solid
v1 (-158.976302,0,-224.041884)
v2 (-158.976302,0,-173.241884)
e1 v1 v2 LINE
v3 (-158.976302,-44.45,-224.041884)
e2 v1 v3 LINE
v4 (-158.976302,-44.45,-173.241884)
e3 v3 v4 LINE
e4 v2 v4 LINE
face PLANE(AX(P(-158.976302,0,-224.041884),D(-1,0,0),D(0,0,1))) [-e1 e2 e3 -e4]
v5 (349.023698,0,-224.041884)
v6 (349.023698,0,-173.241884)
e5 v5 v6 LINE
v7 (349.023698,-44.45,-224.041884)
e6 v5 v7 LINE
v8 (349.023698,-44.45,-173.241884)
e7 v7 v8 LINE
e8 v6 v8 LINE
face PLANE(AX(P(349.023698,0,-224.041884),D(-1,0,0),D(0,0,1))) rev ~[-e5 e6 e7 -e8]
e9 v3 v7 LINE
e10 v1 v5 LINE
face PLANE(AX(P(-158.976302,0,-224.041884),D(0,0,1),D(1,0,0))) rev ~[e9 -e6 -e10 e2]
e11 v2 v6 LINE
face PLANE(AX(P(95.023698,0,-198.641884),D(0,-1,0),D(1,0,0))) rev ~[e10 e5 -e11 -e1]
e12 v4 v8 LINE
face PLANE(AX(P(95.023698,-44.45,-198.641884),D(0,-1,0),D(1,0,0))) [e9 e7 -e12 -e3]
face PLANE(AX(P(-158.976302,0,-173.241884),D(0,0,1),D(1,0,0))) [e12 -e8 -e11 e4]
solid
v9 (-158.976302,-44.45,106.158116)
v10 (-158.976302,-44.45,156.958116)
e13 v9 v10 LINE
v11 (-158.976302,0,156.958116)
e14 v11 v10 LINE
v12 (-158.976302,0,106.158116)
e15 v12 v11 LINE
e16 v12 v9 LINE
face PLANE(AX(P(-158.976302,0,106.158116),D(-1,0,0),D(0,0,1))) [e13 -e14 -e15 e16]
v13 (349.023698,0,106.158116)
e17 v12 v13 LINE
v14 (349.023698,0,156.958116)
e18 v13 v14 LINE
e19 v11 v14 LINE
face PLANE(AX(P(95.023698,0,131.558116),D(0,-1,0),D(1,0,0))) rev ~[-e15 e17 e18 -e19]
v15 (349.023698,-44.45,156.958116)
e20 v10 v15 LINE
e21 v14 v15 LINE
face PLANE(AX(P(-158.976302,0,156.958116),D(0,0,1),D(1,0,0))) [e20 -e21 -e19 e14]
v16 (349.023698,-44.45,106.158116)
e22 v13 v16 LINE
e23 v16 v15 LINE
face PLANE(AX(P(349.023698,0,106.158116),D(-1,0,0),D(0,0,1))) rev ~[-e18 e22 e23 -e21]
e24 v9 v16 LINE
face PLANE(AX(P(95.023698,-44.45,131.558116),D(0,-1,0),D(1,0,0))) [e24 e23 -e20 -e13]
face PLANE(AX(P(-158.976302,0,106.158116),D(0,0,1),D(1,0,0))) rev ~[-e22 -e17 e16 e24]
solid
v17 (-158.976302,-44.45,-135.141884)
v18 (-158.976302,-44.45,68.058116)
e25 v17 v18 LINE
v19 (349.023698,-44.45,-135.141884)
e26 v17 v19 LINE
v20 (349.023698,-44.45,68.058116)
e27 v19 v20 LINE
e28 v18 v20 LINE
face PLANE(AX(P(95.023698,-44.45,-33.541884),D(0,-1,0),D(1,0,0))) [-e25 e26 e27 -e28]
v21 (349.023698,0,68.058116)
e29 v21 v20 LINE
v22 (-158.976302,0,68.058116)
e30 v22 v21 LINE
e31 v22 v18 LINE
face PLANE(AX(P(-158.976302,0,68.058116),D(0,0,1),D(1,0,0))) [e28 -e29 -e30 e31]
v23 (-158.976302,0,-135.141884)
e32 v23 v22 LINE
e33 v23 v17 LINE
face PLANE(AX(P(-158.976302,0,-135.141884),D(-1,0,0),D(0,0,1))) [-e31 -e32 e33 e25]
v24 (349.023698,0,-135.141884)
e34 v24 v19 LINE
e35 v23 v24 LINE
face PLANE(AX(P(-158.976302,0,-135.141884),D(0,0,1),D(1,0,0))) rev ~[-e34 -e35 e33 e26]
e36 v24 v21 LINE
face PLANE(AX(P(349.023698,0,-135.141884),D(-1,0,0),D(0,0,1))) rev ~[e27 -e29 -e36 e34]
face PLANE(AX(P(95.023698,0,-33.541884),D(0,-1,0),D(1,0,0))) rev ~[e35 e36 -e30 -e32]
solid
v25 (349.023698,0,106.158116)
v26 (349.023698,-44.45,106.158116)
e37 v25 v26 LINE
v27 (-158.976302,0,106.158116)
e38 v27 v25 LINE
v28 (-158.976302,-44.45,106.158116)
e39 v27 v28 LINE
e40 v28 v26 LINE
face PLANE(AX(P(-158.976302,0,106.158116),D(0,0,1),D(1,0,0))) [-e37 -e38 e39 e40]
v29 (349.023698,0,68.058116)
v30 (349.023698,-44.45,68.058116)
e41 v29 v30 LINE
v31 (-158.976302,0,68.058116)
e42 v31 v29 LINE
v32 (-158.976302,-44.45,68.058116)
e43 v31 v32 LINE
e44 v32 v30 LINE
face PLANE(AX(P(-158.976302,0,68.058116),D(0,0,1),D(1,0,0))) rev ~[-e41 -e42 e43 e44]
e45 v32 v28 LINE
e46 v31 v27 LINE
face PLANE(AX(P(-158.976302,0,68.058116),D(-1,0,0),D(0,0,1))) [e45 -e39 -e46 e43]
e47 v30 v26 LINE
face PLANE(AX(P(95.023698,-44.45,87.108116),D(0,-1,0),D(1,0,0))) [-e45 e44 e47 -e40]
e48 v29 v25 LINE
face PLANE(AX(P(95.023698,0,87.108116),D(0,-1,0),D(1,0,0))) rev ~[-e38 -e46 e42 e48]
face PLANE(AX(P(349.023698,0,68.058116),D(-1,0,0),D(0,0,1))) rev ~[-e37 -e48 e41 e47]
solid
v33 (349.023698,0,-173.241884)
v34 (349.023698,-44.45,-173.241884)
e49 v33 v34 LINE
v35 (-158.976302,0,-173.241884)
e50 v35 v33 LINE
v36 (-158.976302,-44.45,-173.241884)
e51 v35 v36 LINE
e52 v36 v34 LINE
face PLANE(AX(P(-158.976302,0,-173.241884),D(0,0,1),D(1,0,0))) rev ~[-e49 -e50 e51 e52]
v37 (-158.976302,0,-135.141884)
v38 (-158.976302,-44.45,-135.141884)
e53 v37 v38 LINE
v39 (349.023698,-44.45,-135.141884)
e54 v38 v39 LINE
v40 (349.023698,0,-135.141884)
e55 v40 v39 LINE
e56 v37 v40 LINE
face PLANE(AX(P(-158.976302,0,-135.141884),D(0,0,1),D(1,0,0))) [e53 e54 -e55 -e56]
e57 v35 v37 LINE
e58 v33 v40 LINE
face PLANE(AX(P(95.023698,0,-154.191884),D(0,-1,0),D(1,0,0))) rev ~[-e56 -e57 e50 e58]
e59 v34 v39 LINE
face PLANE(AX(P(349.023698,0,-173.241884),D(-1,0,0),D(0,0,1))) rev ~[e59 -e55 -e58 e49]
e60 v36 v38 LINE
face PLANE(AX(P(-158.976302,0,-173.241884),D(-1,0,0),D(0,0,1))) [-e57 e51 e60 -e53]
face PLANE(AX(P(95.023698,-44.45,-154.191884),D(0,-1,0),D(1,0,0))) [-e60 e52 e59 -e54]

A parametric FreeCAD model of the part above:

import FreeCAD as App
import Part
import Sketcher
from FreeCAD import Vector
Q = App.Units.Quantity


def add_polygon(sketch, points):
    """Adds a closed chain of lines whose ends are joined by coincident constraints."""
    first, n = sketch.GeometryCount, len(points)
    for a, b in zip(points, points[1:] + points[:1]):
        sketch.addGeometry(Part.LineSegment(App.Vector(*a, 0), App.Vector(*b, 0)), False)
    for i in range(n):
        sketch.addConstraint(Sketcher.Constraint("Coincident", first + i, 2, first + (i + 1) % n, 1))

doc = App.newDocument("Part")
body = doc.addObject("PartDesign::Body", "Body")

# Sketch on XZ plane
sketch1 = body.newObject("Sketcher::SketchObject", "Sketch")
sketch1.AttachmentSupport = (doc.getObject("XZ_Plane"), [""])
sketch1.MapMode = "FlatFace"
add_polygon(sketch1, [(-159, 106), (-159, 68), (349, 68), (349, 106)])  # lines 0-3
sketch1.addConstraint([
    Sketcher.Constraint("Vertical", 0),
    Sketcher.Constraint("Horizontal", 1),
    Sketcher.Constraint("Vertical", 2),
    Sketcher.Constraint("Horizontal", 3),
    Sketcher.Constraint("DistanceX", 1, 1, 1, 2, Q("20 in")),
    Sketcher.Constraint("DistanceY", 0, 2, 0, 1, Q("1.5 in")),
    Sketcher.Constraint("DistanceX", 0, 2, -1, 1, Q("158.976302 mm")),
    Sketcher.Constraint("DistanceY", -1, 1, 0, 2, Q("68.058116 mm")),
])
pad1 = body.newObject("PartDesign::Pad", "Pad")
pad1.Profile = sketch1
pad1.Length = Q("1.75 in")
body2 = doc.addObject("PartDesign::Body", "Body001")

# Sketch on XZ plane
sketch2 = body2.newObject("Sketcher::SketchObject", "Sketch001")
sketch2.AttachmentSupport = (doc.getObject("XZ_Plane001"), [""])
sketch2.MapMode = "FlatFace"
add_polygon(sketch2, [(-159, -135), (-159, -173), (349, -173), (349, -135)])  # lines 0-3
sketch2.addConstraint([
    Sketcher.Constraint("Vertical", 0),
    Sketcher.Constraint("Horizontal", 1),
    Sketcher.Constraint("Vertical", 2),
    Sketcher.Constraint("Horizontal", 3),
    Sketcher.Constraint("DistanceX", 1, 1, 1, 2, Q("20 in")),
    Sketcher.Constraint("DistanceY", 0, 2, 0, 1, Q("1.5 in")),
    Sketcher.Constraint("DistanceX", 0, 2, -1, 1, Q("158.976302 mm")),
    Sketcher.Constraint("DistanceY", 0, 2, -1, 1, Q("173.241884 mm")),
])
pad2 = body2.newObject("PartDesign::Pad", "Pad001")
pad2.Profile = sketch2
pad2.Length = Q("1.75 in")
body3 = doc.addObject("PartDesign::Body", "Body002")
body3.AllowCompound = True

# Sketch on XZ plane
sketch3 = body3.newObject("Sketcher::SketchObject", "Sketch002")
sketch3.AttachmentSupport = (doc.getObject("XZ_Plane002"), [""])
sketch3.MapMode = "FlatFace"
add_polygon(sketch3, [(-159, 68), (-159, -135), (349, -135), (349, 68)])  # lines 0-3
add_polygon(sketch3, [(-159, 157), (-159, 106), (349, 106), (349, 157)])  # lines 4-7
add_polygon(sketch3, [(-159, -173), (-159, -224), (349, -224), (349, -173)])  # lines 8-11
sketch3.addConstraint([
    Sketcher.Constraint("Vertical", 0),
    Sketcher.Constraint("Horizontal", 1),
    Sketcher.Constraint("Vertical", 2),
    Sketcher.Constraint("Horizontal", 3),
    Sketcher.Constraint("Vertical", 4),
    Sketcher.Constraint("Horizontal", 5),
    Sketcher.Constraint("Vertical", 6),
    Sketcher.Constraint("Horizontal", 7),
    Sketcher.Constraint("Vertical", 8),
    Sketcher.Constraint("Horizontal", 9),
    Sketcher.Constraint("Vertical", 10),
    Sketcher.Constraint("Horizontal", 11),
    Sketcher.Constraint("Vertical", 3, 2, 4, 2),
    Sketcher.Constraint("Vertical", 2, 2, 5, 2),
    Sketcher.Constraint("Vertical", 7, 2, 8, 2),
    Sketcher.Constraint("Vertical", 6, 2, 9, 2),
    Sketcher.Constraint("Equal", 6, 8),
    Sketcher.Constraint("DistanceX", 1, 1, 1, 2, Q("20 in")),
    Sketcher.Constraint("DistanceY", 0, 2, 0, 1, Q("8 in")),
    Sketcher.Constraint("DistanceY", 4, 2, 4, 1, Q("2 in")),
    Sketcher.Constraint("DistanceY", 8, 2, 4, 2, Q("13 in")),
    Sketcher.Constraint("DistanceY", 3, 2, 4, 2, Q("1.5 in")),
    Sketcher.Constraint("DistanceX", 0, 2, -1, 1, Q("158.976302 mm")),
    Sketcher.Constraint("DistanceY", 0, 2, -1, 1, Q("135.141884 mm")),
])
pad3 = body3.newObject("PartDesign::Pad", "Pad002")
pad3.Profile = sketch3
pad3.Length = Q("1.75 in")

doc.recompute()
